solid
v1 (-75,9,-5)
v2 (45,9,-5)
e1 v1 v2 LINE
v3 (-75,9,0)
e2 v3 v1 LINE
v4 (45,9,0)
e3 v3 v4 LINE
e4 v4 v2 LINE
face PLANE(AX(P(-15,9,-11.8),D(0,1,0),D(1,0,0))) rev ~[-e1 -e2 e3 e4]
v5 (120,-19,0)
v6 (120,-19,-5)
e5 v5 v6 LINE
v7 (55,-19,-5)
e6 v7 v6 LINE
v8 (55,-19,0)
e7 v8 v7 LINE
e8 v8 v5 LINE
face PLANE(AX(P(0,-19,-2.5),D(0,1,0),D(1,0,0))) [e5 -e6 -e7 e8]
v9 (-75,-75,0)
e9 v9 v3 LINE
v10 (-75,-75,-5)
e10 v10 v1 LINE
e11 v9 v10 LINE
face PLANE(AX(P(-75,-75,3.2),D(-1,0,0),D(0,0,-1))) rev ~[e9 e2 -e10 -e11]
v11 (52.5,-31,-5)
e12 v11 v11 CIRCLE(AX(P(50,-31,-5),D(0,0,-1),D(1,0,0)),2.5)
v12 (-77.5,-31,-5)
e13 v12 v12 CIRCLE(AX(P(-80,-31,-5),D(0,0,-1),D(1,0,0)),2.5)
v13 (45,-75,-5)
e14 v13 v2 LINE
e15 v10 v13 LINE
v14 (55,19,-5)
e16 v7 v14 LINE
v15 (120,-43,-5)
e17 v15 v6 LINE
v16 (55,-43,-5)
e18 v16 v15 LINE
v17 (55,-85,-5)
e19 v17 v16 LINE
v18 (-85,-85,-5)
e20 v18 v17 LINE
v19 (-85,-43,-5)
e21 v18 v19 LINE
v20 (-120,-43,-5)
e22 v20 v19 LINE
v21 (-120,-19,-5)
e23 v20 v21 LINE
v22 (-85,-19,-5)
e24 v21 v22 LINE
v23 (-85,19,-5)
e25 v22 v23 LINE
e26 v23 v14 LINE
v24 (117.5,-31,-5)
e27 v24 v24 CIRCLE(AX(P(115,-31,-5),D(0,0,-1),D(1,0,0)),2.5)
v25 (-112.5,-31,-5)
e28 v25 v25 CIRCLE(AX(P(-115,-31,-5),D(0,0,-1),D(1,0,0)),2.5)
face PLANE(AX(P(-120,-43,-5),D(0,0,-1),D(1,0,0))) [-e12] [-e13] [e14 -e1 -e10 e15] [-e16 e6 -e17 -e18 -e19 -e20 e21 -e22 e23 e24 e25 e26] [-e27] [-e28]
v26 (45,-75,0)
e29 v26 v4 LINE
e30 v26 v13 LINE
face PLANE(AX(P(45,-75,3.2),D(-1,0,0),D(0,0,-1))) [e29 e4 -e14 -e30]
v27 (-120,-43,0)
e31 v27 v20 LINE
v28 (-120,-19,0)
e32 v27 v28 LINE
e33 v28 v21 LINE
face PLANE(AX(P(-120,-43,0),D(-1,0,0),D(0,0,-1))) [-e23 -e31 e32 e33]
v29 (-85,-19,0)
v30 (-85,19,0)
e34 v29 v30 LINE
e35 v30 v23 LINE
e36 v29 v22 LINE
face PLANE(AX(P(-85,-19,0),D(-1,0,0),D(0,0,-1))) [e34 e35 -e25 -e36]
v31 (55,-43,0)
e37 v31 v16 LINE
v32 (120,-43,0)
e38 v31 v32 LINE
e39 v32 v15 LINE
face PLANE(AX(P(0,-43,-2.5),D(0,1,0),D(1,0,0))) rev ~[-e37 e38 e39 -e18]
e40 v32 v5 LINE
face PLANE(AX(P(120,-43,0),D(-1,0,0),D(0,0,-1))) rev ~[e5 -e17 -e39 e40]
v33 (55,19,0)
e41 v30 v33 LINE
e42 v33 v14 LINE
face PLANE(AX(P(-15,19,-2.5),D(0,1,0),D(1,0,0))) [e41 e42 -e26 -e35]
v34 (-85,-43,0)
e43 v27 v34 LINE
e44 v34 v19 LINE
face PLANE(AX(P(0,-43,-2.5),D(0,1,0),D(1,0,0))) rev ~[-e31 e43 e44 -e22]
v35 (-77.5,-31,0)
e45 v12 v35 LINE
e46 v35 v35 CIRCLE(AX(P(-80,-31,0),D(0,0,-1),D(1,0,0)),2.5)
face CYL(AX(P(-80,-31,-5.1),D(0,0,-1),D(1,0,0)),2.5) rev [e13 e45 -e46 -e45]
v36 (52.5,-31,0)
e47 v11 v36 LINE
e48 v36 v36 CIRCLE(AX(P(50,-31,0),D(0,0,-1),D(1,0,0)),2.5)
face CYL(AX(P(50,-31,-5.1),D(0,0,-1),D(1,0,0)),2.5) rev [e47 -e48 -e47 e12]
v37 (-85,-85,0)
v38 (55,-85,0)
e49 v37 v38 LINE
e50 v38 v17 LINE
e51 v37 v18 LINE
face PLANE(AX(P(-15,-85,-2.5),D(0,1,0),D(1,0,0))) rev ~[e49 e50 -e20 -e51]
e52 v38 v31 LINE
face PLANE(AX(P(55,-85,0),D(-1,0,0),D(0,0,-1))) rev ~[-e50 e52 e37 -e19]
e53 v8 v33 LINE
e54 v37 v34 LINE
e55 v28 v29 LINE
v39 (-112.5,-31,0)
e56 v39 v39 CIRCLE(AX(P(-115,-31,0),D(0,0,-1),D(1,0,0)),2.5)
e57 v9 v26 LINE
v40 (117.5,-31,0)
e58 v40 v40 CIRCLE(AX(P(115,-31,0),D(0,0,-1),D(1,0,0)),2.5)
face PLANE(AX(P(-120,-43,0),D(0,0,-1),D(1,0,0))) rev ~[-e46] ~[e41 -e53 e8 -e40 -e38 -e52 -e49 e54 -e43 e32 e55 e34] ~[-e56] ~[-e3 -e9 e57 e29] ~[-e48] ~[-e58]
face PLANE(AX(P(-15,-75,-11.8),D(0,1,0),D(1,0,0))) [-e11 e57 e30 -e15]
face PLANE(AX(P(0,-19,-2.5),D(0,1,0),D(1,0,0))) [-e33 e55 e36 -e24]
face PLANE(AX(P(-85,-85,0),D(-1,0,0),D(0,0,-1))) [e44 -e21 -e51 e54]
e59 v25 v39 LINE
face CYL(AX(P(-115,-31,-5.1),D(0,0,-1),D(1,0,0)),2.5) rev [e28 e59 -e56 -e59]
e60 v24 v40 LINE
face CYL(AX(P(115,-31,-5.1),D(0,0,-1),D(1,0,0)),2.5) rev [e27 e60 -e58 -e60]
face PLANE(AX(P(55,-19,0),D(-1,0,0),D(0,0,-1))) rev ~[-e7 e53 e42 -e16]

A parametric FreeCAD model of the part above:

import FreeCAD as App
import Part
import Sketcher
from FreeCAD import Vector
Q = App.Units.Quantity

doc = App.newDocument("Part")
body = doc.addObject("PartDesign::Body", "Body")

# Sketch on XY plane
sketch1 = body.newObject("Sketcher::SketchObject", "Sketch")
sketch1.AttachmentSupport = (doc.getObject("XY_Plane"), [""])
sketch1.MapMode = "FlatFace"
sketch1.AttachmentOffset = App.Placement(Vector(0, 0, -75), App.Rotation())
sketch1.addGeometry([
    Part.LineSegment(Vector(-75, 26.8, 0), Vector(-75, -3.2, 0)),
    Part.LineSegment(Vector(-75, -3.2, 0), Vector(45, -3.2, 0)),
    Part.LineSegment(Vector(45, -3.2, 0), Vector(45, 26.8, 0)),
    Part.LineSegment(Vector(45, 26.8, 0), Vector(-75, 26.8, 0)),
], False)
sketch1.addConstraint([
    Sketcher.Constraint("Coincident", 0, 2, 1, 1),
    Sketcher.Constraint("Coincident", 1, 2, 2, 1),
    Sketcher.Constraint("Coincident", 2, 2, 3, 1),
    Sketcher.Constraint("Coincident", 3, 2, 0, 1),
    Sketcher.Constraint("Vertical", 0),
    Sketcher.Constraint("Horizontal", 1),
    Sketcher.Constraint("Vertical", 2),
    Sketcher.Constraint("Horizontal", 3),
    Sketcher.Constraint("DistanceX", 1, 1, 1, 2, Q("120 mm")),
    Sketcher.Constraint("DistanceY", 0, 2, 0, 1, Q("30 mm")),
    Sketcher.Constraint("DistanceX", 0, 2, -1, 1, Q("75 mm")),
    Sketcher.Constraint("DistanceY", 0, 2, -1, 1, Q("3.2 mm")),
])
pad1 = body.newObject("PartDesign::Pad", "Pad")
pad1.Profile = sketch1
pad1.Length = 84
body2 = doc.addObject("PartDesign::Body", "Body001")

# Sketch on XZ plane
sketch2 = body2.newObject("Sketcher::SketchObject", "Sketch001")
sketch2.AttachmentSupport = (doc.getObject("XZ_Plane001"), [""])
sketch2.MapMode = "FlatFace"
sketch2.addGeometry(Part.Circle(Vector(115, -31, 0), Vector(0, 0, 1), 2.5), False)
sketch2.addConstraint([
    Sketcher.Constraint("Diameter", 0, Q("5 mm")),
    Sketcher.Constraint("DistanceX", -1, 1, 0, 3, Q("115 mm")),
    Sketcher.Constraint("DistanceY", 0, 3, -1, 1, Q("31 mm")),
])
pad2 = body2.newObject("PartDesign::Pad", "Pad001")
pad2.Profile = sketch2
pad2.Length = 10
body3 = doc.addObject("PartDesign::Body", "Body002")

# Sketch on XZ plane
sketch3 = body3.newObject("Sketcher::SketchObject", "Sketch002")
sketch3.AttachmentSupport = (doc.getObject("XZ_Plane002"), [""])
sketch3.MapMode = "FlatFace"
sketch3.addGeometry(Part.Circle(Vector(-80, -31, 0), Vector(0, 0, 1), 2.5), False)
sketch3.addConstraint([
    Sketcher.Constraint("Diameter", 0, Q("5 mm")),
    Sketcher.Constraint("DistanceX", 0, 3, -1, 1, Q("80 mm")),
    Sketcher.Constraint("DistanceY", 0, 3, -1, 1, Q("31 mm")),
])
pad3 = body3.newObject("PartDesign::Pad", "Pad002")
pad3.Profile = sketch3
pad3.Length = 10
body4 = doc.addObject("PartDesign::Body", "Body003")

# Sketch on XZ plane
sketch4 = body4.newObject("Sketcher::SketchObject", "Sketch003")
sketch4.AttachmentSupport = (doc.getObject("XZ_Plane003"), [""])
sketch4.MapMode = "FlatFace"
sketch4.addGeometry(Part.Circle(Vector(50, -31, 0), Vector(0, 0, 1), 2.5), False)
sketch4.addConstraint([
    Sketcher.Constraint("Diameter", 0, Q("5 mm")),
    Sketcher.Constraint("DistanceX", -1, 1, 0, 3, Q("50 mm")),
    Sketcher.Constraint("DistanceY", 0, 3, -1, 1, Q("31 mm")),
])
pad4 = body4.newObject("PartDesign::Pad", "Pad003")
pad4.Profile = sketch4
pad4.Length = 10
body5 = doc.addObject("PartDesign::Body", "Body004")

# Sketch on XZ plane
sketch5 = body5.newObject("Sketcher::SketchObject", "Sketch004")
sketch5.AttachmentSupport = (doc.getObject("XZ_Plane004"), [""])
sketch5.MapMode = "FlatFace"
sketch5.addGeometry(Part.Circle(Vector(-45.75, -56.3, 0), Vector(0, 0, 1), 2.5), False)
sketch5.addConstraint([
    Sketcher.Constraint("Diameter", 0, Q("5 mm")),
    Sketcher.Constraint("DistanceY", 0, 3, -1, 1, Q("56.3 mm")),
    Sketcher.Constraint("DistanceX", 0, 3, -1, 1, Q("45.75 mm")),
])
pad5 = body5.newObject("PartDesign::Pad", "Pad004")
pad5.Profile = sketch5
pad5.Length = 10
body6 = doc.addObject("PartDesign::Body", "Body005")

# Sketch on XZ plane
sketch6 = body6.newObject("Sketcher::SketchObject", "Sketch005")
sketch6.AttachmentSupport = (doc.getObject("XZ_Plane005"), [""])
sketch6.MapMode = "FlatFace"
sketch6.addGeometry(Part.Circle(Vector(-115, -31, 0), Vector(0, 0, 1), 2.5), False)
sketch6.addConstraint([
    Sketcher.Constraint("Diameter", 0, Q("5 mm")),
    Sketcher.Constraint("DistanceX", 0, 3, -1, 1, Q("115 mm")),
    Sketcher.Constraint("DistanceY", 0, 3, -1, 1, Q("31 mm")),
])
pad6 = body6.newObject("PartDesign::Pad", "Pad005")
pad6.Profile = sketch6
pad6.Length = 10
body7 = doc.addObject("PartDesign::Body", "Body006")
body7.AllowCompound = True

# Sketch on XZ plane
sketch7 = body7.newObject("Sketcher::SketchObject", "Sketch006")
sketch7.AttachmentSupport = (doc.getObject("XZ_Plane006"), [""])
sketch7.MapMode = "FlatFace"
sketch7.addGeometry(Part.Circle(Vector(-45.75, -1.3, 0), Vector(0, 0, 1), 2.5), False)
sketch7.addConstraint([
    Sketcher.Constraint("Diameter", 0, Q("5 mm")),
    Sketcher.Constraint("DistanceY", 0, 3, -1, 1, Q("1.3 mm")),
    Sketcher.Constraint("DistanceX", 0, 3, -1, 1, Q("45.75 mm")),
])
pad7 = body7.newObject("PartDesign::Pad", "Pad006")
pad7.Profile = sketch7
pad7.Length = 10
doc.recompute()

boolean = body7.newObject("PartDesign::Boolean", "Boolean")
boolean.Type = "Fuse"
boolean.addObjects([body2])
doc.recompute()

boolean2 = body7.newObject("PartDesign::Boolean", "Boolean001")
boolean2.Type = "Fuse"
boolean2.addObjects([body3])
doc.recompute()

boolean3 = body7.newObject("PartDesign::Boolean", "Boolean002")
boolean3.Type = "Fuse"
boolean3.addObjects([body4])
doc.recompute()

boolean4 = body7.newObject("PartDesign::Boolean", "Boolean003")
boolean4.Type = "Fuse"
boolean4.addObjects([body5])
doc.recompute()

boolean5 = body7.newObject("PartDesign::Boolean", "Boolean004")
boolean5.Type = "Fuse"
boolean5.addObjects([body6])
body8 = doc.addObject("PartDesign::Body", "Body007")
body8.AllowCompound = True
doc.recompute()

body7.Placement = App.Placement(Vector(0, 5.1, 0), App.Rotation(Vector(0, 0, 1), 0))
boolean6 = body8.newObject("PartDesign::Boolean", "Boolean005")
boolean6.Type = "Fuse"
boolean6.addObjects([body7])
body9 = doc.addObject("PartDesign::Body", "Body008")

# Sketch on XY plane
sketch8 = body9.newObject("Sketcher::SketchObject", "Sketch007")
sketch8.AttachmentSupport = (doc.getObject("XY_Plane008"), [""])
sketch8.MapMode = "FlatFace"
sketch8.AttachmentOffset = App.Placement(Vector(0, 0, -43), App.Rotation())
sketch8.addGeometry([
    Part.LineSegment(Vector(-120, 5, 0), Vector(-120, 0, 0)),
    Part.LineSegment(Vector(-120, 0, 0), Vector(120, 0, 0)),
    Part.LineSegment(Vector(120, 0, 0), Vector(120, 5, 0)),
    Part.LineSegment(Vector(120, 5, 0), Vector(-120, 5, 0)),
], False)
sketch8.addConstraint([
    Sketcher.Constraint("Coincident", 0, 2, 1, 1),
    Sketcher.Constraint("Coincident", 1, 2, 2, 1),
    Sketcher.Constraint("Coincident", 2, 2, 3, 1),
    Sketcher.Constraint("Coincident", 3, 2, 0, 1),
    Sketcher.Constraint("Vertical", 0),
    Sketcher.Constraint("Horizontal", 1),
    Sketcher.Constraint("Vertical", 2),
    Sketcher.Constraint("Horizontal", 3),
    Sketcher.Constraint("Symmetric", 0, 2, 1, 2, -1, 1),
    Sketcher.Constraint("DistanceX", 1, 1, 1, 2, Q("240 mm")),
    Sketcher.Constraint("DistanceY", 0, 2, 0, 1, Q("5 mm")),
])
pad8 = body9.newObject("PartDesign::Pad", "Pad007")
pad8.Profile = sketch8
pad8.Length = 24
body10 = doc.addObject("PartDesign::Body", "Body009")

# Sketch on XY plane
sketch9 = body10.newObject("Sketcher::SketchObject", "Sketch008")
sketch9.AttachmentSupport = (doc.getObject("XY_Plane009"), [""])
sketch9.MapMode = "FlatFace"
sketch9.AttachmentOffset = App.Placement(Vector(0, 0, -19), App.Rotation())
sketch9.addGeometry([
    Part.LineSegment(Vector(-85, 5, 0), Vector(-85, 0, 0)),
    Part.LineSegment(Vector(-85, 0, 0), Vector(55, 0, 0)),
    Part.LineSegment(Vector(55, 0, 0), Vector(55, 5, 0)),
    Part.LineSegment(Vector(55, 5, 0), Vector(-85, 5, 0)),
], False)
sketch9.addConstraint([
    Sketcher.Constraint("Coincident", 0, 2, 1, 1),
    Sketcher.Constraint("Coincident", 1, 2, 2, 1),
    Sketcher.Constraint("Coincident", 2, 2, 3, 1),
    Sketcher.Constraint("Coincident", 3, 2, 0, 1),
    Sketcher.Constraint("Vertical", 0),
    Sketcher.Constraint("Horizontal", 1),
    Sketcher.Constraint("Vertical", 2),
    Sketcher.Constraint("Horizontal", 3),
    Sketcher.Constraint("PointOnObject", 0, 2, -1),
    Sketcher.Constraint("DistanceX", 1, 1, 1, 2, Q("140 mm")),
    Sketcher.Constraint("DistanceY", 0, 2, 0, 1, Q("5 mm")),
    Sketcher.Constraint("DistanceX", 0, 2, -1, 1, Q("85 mm")),
])
pad9 = body10.newObject("PartDesign::Pad", "Pad008")
pad9.Profile = sketch9
pad9.Length = 38
body11 = doc.addObject("PartDesign::Body", "Body010")

# Sketch on XY plane
sketch10 = body11.newObject("Sketcher::SketchObject", "Sketch009")
sketch10.AttachmentSupport = (doc.getObject("XY_Plane010"), [""])
sketch10.MapMode = "FlatFace"
sketch10.AttachmentOffset = App.Placement(Vector(0, 0, -85), App.Rotation())
sketch10.addGeometry([
    Part.LineSegment(Vector(-85, 5, 0), Vector(-85, 0, 0)),
    Part.LineSegment(Vector(-85, 0, 0), Vector(55, 0, 0)),
    Part.LineSegment(Vector(55, 0, 0), Vector(55, 5, 0)),
    Part.LineSegment(Vector(55, 5, 0), Vector(-85, 5, 0)),
], False)
sketch10.addConstraint([
    Sketcher.Constraint("Coincident", 0, 2, 1, 1),
    Sketcher.Constraint("Coincident", 1, 2, 2, 1),
    Sketcher.Constraint("Coincident", 2, 2, 3, 1),
    Sketcher.Constraint("Coincident", 3, 2, 0, 1),
    Sketcher.Constraint("Vertical", 0),
    Sketcher.Constraint("Horizontal", 1),
    Sketcher.Constraint("Vertical", 2),
    Sketcher.Constraint("Horizontal", 3),
    Sketcher.Constraint("PointOnObject", 0, 2, -1),
    Sketcher.Constraint("DistanceX", 1, 1, 1, 2, Q("140 mm")),
    Sketcher.Constraint("DistanceY", 0, 2, 0, 1, Q("5 mm")),
    Sketcher.Constraint("DistanceX", 0, 2, -1, 1, Q("85 mm")),
])
pad10 = body11.newObject("PartDesign::Pad", "Pad009")
pad10.Profile = sketch10
pad10.Length = 42
doc.recompute()

boolean7 = body11.newObject("PartDesign::Boolean", "Boolean006")
boolean7.Type = "Fuse"
boolean7.addObjects([body9])
doc.recompute()

boolean8 = body11.newObject("PartDesign::Boolean", "Boolean007")
boolean8.Type = "Fuse"
boolean8.addObjects([body10])
doc.recompute()

boolean9 = body11.newObject("PartDesign::Boolean", "Boolean008")
boolean9.Type = "Cut"
boolean9.addObjects([body8])
doc.recompute()

boolean10 = body11.newObject("PartDesign::Boolean", "Boolean009")
boolean10.Type = "Cut"
boolean10.addObjects([body])
body12 = doc.addObject("PartDesign::Body", "Body011")
doc.recompute()

body11.Placement = App.Placement(Vector(0, 0, 0), App.Rotation(Vector(-1, 0, 0), 90))
boolean11 = body12.newObject("PartDesign::Boolean", "Boolean010")
boolean11.Type = "Fuse"
boolean11.addObjects([body11])

doc.recompute()
